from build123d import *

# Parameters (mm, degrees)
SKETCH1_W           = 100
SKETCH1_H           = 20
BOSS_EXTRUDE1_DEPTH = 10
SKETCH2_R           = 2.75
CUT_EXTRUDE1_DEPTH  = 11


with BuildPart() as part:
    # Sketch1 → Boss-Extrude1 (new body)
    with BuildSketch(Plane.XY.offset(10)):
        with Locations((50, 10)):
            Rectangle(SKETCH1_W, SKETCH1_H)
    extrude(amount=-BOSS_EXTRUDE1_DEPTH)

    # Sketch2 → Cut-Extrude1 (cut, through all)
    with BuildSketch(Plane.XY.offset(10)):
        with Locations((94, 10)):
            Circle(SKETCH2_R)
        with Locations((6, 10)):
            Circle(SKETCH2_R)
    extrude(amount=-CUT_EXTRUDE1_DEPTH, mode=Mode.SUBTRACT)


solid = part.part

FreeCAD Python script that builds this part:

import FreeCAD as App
import Part
import Sketcher

V = App.Vector
Q = App.Units.Quantity

doc = App.newDocument("Part")
body = doc.addObject("PartDesign::Body", "Body")

# Sketch on XY plane
sketch1 = body.newObject("Sketcher::SketchObject", "Sketch")
sketch1.AttachmentSupport = (doc.getObject("XY_Plane"), [""])
sketch1.MapMode = "FlatFace"
sketch1.AttachmentOffset = App.Placement(V(0, 0, 10), App.Rotation())
sketch1.addGeometry([
    Part.LineSegment(V(0, 20, 0), V(0, 0, 0)),
    Part.LineSegment(V(0, 0, 0), V(100, 0, 0)),
    Part.LineSegment(V(100, 0, 0), V(100, 20, 0)),
    Part.LineSegment(V(100, 20, 0), V(0, 20, 0)),
], False)
sketch1.addConstraint([
    Sketcher.Constraint("Coincident", 0, 2, 1, 1),
    Sketcher.Constraint("Coincident", 1, 2, 2, 1),
    Sketcher.Constraint("Coincident", 2, 2, 3, 1),
    Sketcher.Constraint("Coincident", 3, 2, 0, 1),
    Sketcher.Constraint("Vertical", 0),
    Sketcher.Constraint("Horizontal", 1),
    Sketcher.Constraint("Vertical", 2),
    Sketcher.Constraint("Horizontal", 3),
    Sketcher.Constraint("Coincident", 0, 2, -1, 1),
    Sketcher.Constraint("DistanceX", 1, 1, 1, 2, Q("100 mm")),
    Sketcher.Constraint("DistanceY", 0, 2, 0, 1, Q("20 mm")),
])
pad1 = body.newObject("PartDesign::Pad", "Pad")
pad1.Profile = sketch1
pad1.Length = 10
pad1.Reversed = True

# Sketch on XY plane
sketch2 = body.newObject("Sketcher::SketchObject", "Sketch001")
sketch2.AttachmentSupport = (doc.getObject("XY_Plane"), [""])
sketch2.MapMode = "FlatFace"
sketch2.AttachmentOffset = App.Placement(V(0, 0, 10), App.Rotation())
sketch2.addGeometry([
    Part.Circle(V(94, 10, 0), V(0, 0, 1), 2.75),
    Part.Circle(V(6, 10, 0), V(0, 0, 1), 2.75),
], False)
sketch2.addConstraint([
    Sketcher.Constraint("Equal", 0, 1),
    Sketcher.Constraint("Horizontal", 0, 3, 1, 3),
    Sketcher.Constraint("Diameter", 0, Q("5.5 mm")),
    Sketcher.Constraint("DistanceX", -1, 1, 0, 3, Q("94 mm")),
    Sketcher.Constraint("DistanceY", -1, 1, 0, 3, Q("10 mm")),
    Sketcher.Constraint("DistanceX", -1, 1, 1, 3, Q("6 mm")),
])
pocket1 = body.newObject("PartDesign::Pocket", "Pocket")
pocket1.Profile = sketch2
pocket1.Type = "ThroughAll"

doc.recompute()
